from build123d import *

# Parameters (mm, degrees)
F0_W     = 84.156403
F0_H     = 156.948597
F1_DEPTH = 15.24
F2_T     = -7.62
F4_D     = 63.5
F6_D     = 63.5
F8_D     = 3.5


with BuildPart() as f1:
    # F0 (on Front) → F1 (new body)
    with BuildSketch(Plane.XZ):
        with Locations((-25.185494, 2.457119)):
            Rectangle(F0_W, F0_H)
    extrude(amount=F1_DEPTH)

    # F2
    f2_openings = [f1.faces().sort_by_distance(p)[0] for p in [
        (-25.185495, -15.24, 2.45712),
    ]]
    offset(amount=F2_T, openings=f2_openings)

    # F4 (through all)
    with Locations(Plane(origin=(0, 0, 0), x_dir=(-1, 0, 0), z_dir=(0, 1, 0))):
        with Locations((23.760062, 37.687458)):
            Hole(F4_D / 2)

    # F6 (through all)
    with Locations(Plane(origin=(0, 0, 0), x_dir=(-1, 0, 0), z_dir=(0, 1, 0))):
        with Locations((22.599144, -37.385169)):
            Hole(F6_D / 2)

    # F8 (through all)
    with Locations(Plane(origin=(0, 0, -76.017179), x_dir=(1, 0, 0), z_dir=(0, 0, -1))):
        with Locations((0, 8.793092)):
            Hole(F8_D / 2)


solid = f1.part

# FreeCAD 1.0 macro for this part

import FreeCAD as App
import Part
import Sketcher

V = App.Vector
Q = App.Units.Quantity


def faces_at(feature, points):
    """Names of the faces that lie closest to the given points."""
    faces = feature.Shape.Faces
    near = lambda p: min(range(len(faces)), key=lambda i: faces[i].distToShape(Part.Vertex(*p))[0])
    return sorted({f"Face{near(p) + 1}" for p in points})


def add_polygon(sketch, points):
    """Adds a closed chain of lines whose ends are joined by coincident constraints."""
    first, n = sketch.GeometryCount, len(points)
    for a, b in zip(points, points[1:] + points[:1]):
        sketch.addGeometry(Part.LineSegment(App.Vector(*a, 0), App.Vector(*b, 0)), False)
    for i in range(n):
        sketch.addConstraint(Sketcher.Constraint("Coincident", first + i, 2, first + (i + 1) % n, 1))

doc = App.newDocument("Part")
body = doc.addObject("PartDesign::Body", "Body")

# Sketch on XZ plane
sketch1 = doc.addObject("Sketcher::SketchObject", "Sketch")
body.addObject(sketch1)
sketch1.AttachmentSupport = (doc.XZ_Plane, [""])
sketch1.MapMode = "FlatFace"
add_polygon(sketch1, [(-67, 81), (-67, -76), (17, -76), (17, 81)])  # lines 0-3
sketch1.addConstraint(Sketcher.Constraint("Vertical", 0))
sketch1.addConstraint(Sketcher.Constraint("Horizontal", 1))
sketch1.addConstraint(Sketcher.Constraint("Vertical", 2))
sketch1.addConstraint(Sketcher.Constraint("Horizontal", 3))
sketch1.addConstraint(Sketcher.Constraint("DistanceX", 1, 1, 1, 2, 84.156403))
sketch1.addConstraint(Sketcher.Constraint("DistanceY", 0, 2, 0, 1, 156.948597))
sketch1.addConstraint(Sketcher.Constraint("DistanceY", 0, 2, -1, 1, 76.017179))
sketch1.addConstraint(Sketcher.Constraint("DistanceX", 0, 2, -1, 1, 67.263695))
pad1 = doc.addObject("PartDesign::Pad", "Pad")
body.addObject(pad1)
pad1.Profile = sketch1
pad1.Length = Q("0.6 in")
doc.recompute()

thickness = doc.addObject("PartDesign::Thickness", "Thickness")
body.addObject(thickness)
thickness.Base = (pad1, faces_at(pad1, [(-25.185, -15.24, 2.457)]))
thickness.Value = Q("0.3 in")
thickness.Reversed = True
thickness.Join = "Arc"

# Sketch on XZ plane
sketch2 = doc.addObject("Sketcher::SketchObject", "Sketch001")
body.addObject(sketch2)
sketch2.AttachmentSupport = (doc.XZ_Plane, [""])
sketch2.MapMode = "FlatFace"
sketch2.addGeometry(Part.Circle(V(-24, 38, 0), V(0, 0, 1), 32), False)
sketch2.addConstraint(Sketcher.Constraint("Diameter", 0, Q("2.5 in")))
sketch2.addConstraint(Sketcher.Constraint("DistanceX", 0, 3, -1, 1, 23.760062))
sketch2.addConstraint(Sketcher.Constraint("DistanceY", -1, 1, 0, 3, 37.687458))
doc.recompute()
hole = doc.addObject("PartDesign::Hole", "Hole")
body.addObject(hole)
hole.Profile = sketch2
hole.ThreadType = "None"
hole.Diameter = Q("2.5 in")
hole.DepthType = "ThroughAll"
hole.Reversed = True

# Sketch on XZ plane
sketch3 = doc.addObject("Sketcher::SketchObject", "Sketch002")
body.addObject(sketch3)
sketch3.AttachmentSupport = (doc.XZ_Plane, [""])
sketch3.MapMode = "FlatFace"
sketch3.addGeometry(Part.Circle(V(-23, -37, 0), V(0, 0, 1), 32), False)
sketch3.addConstraint(Sketcher.Constraint("Diameter", 0, Q("2.5 in")))
sketch3.addConstraint(Sketcher.Constraint("DistanceY", 0, 3, -1, 1, 37.385169))
sketch3.addConstraint(Sketcher.Constraint("DistanceX", 0, 3, -1, 1, 22.599144))
doc.recompute()
hole2 = doc.addObject("PartDesign::Hole", "Hole001")
body.addObject(hole2)
hole2.Profile = sketch3
hole2.ThreadType = "None"
hole2.Diameter = Q("2.5 in")
hole2.DepthType = "ThroughAll"
hole2.Reversed = True

# Sketch on XY plane
sketch4 = doc.addObject("Sketcher::SketchObject", "Sketch003")
body.addObject(sketch4)
sketch4.AttachmentSupport = (doc.XY_Plane, [""])
sketch4.MapMode = "FlatFace"
sketch4.AttachmentOffset = App.Placement(V(0, 0, -76.017179), App.Rotation())
sketch4.addGeometry(Part.Circle(V(0, -8.8, 0), V(0, 0, 1), 1.8), False)
sketch4.addConstraint(Sketcher.Constraint("PointOnObject", 0, 3, -2))
sketch4.addConstraint(Sketcher.Constraint("Diameter", 0, 3.5))
sketch4.addConstraint(Sketcher.Constraint("DistanceY", 0, 3, -1, 1, 8.793092))
doc.recompute()
hole3 = doc.addObject("PartDesign::Hole", "Hole002")
body.addObject(hole3)
hole3.Profile = sketch4
hole3.ThreadType = "None"
hole3.Diameter = 3.5
hole3.DepthType = "ThroughAll"
hole3.Reversed = True

doc.recompute()
